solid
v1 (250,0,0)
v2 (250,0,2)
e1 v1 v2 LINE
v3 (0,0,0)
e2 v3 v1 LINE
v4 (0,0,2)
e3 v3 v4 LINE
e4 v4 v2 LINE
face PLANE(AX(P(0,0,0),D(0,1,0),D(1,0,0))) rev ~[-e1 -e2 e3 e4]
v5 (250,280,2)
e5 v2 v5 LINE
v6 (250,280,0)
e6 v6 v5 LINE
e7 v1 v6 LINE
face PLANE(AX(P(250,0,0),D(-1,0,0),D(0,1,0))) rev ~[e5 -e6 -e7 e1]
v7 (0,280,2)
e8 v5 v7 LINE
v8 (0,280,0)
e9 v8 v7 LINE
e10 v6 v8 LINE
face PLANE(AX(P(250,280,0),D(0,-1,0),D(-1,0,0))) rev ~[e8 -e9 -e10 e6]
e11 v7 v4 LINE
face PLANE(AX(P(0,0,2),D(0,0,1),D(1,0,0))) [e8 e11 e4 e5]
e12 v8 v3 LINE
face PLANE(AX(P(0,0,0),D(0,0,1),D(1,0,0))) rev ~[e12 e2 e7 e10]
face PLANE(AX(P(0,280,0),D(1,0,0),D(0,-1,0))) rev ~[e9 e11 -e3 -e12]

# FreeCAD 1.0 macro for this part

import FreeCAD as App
import Part
import Sketcher
Q = App.Units.Quantity

doc = App.newDocument("Part")
body = doc.addObject("PartDesign::Body", "Body")

# Sketch on XY plane
sketch1 = body.newObject("Sketcher::SketchObject", "Sketch")
sketch1.AttachmentSupport = (doc.getObject("XY_Plane"), [""])
sketch1.MapMode = "FlatFace"
sketch1.addGeometry(Part.LineSegment(App.Vector(0, 280, 0), App.Vector(0, 0, 0)), False)
sketch1.addGeometry(Part.LineSegment(App.Vector(0, 0, 0), App.Vector(250, 0, 0)), False)
sketch1.addGeometry(Part.LineSegment(App.Vector(250, 0, 0), App.Vector(250, 280, 0)), False)
sketch1.addGeometry(Part.LineSegment(App.Vector(250, 280, 0), App.Vector(0, 280, 0)), False)
sketch1.addConstraint(Sketcher.Constraint("Coincident", 0, 2, 1, 1))
sketch1.addConstraint(Sketcher.Constraint("Coincident", 1, 2, 2, 1))
sketch1.addConstraint(Sketcher.Constraint("Coincident", 2, 2, 3, 1))
sketch1.addConstraint(Sketcher.Constraint("Coincident", 3, 2, 0, 1))
sketch1.addConstraint(Sketcher.Constraint("Vertical", 0))
sketch1.addConstraint(Sketcher.Constraint("Horizontal", 1))
sketch1.addConstraint(Sketcher.Constraint("Vertical", 2))
sketch1.addConstraint(Sketcher.Constraint("Horizontal", 3))
sketch1.addConstraint(Sketcher.Constraint("Coincident", 0, 2, -1, 1))
sketch1.addConstraint(Sketcher.Constraint("DistanceX", 1, 1, 1, 2, Q("250 mm")))
sketch1.addConstraint(Sketcher.Constraint("DistanceY", 0, 2, 0, 1, Q("280 mm")))
pad1 = body.newObject("PartDesign::Pad", "Pad")
pad1.Profile = sketch1
pad1.Length = 2

doc.recompute()
